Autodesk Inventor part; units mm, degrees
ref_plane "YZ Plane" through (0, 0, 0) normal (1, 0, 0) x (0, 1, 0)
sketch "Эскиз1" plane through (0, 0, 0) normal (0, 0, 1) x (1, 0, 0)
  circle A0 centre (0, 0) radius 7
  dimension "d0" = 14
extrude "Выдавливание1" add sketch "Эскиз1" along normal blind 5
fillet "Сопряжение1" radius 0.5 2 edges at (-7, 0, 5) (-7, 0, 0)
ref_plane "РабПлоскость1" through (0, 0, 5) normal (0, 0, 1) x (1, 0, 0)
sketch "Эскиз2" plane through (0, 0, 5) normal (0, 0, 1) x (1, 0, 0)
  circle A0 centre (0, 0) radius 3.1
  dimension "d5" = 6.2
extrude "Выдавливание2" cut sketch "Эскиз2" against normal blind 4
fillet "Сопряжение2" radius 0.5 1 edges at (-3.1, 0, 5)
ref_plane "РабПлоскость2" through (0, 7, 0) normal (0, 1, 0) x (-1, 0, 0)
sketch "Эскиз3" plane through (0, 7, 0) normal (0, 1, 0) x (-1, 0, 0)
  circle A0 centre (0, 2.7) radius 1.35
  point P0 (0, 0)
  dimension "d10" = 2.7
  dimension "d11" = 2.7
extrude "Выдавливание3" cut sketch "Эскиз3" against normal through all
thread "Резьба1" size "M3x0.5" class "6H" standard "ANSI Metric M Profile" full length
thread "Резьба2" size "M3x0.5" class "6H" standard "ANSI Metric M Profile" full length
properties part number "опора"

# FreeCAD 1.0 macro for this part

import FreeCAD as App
import Part
import Sketcher

V = App.Vector
Q = App.Units.Quantity


def edges_at(feature, points):
    """Names of the edges that pass closest to the given points."""
    edges = feature.Shape.Edges
    near = lambda p: min(range(len(edges)), key=lambda i: edges[i].distToShape(Part.Vertex(*p))[0])
    return sorted({f"Edge{near(p) + 1}" for p in points})

doc = App.newDocument("Part")
body = doc.addObject("PartDesign::Body", "Body")

# Sketch on XY plane
sketch1 = body.newObject("Sketcher::SketchObject", "Sketch")
sketch1.AttachmentSupport = (doc.getObject("XY_Plane"), [""])
sketch1.MapMode = "FlatFace"
sketch1.addGeometry(Part.Circle(V(0, 0, 0), V(0, 0, 1), 7), False)
sketch1.addConstraint(Sketcher.Constraint("Coincident", 0, 3, -1, 1))
sketch1.addConstraint(Sketcher.Constraint("Diameter", 0, Q("14 mm")))
pad1 = body.newObject("PartDesign::Pad", "Pad")
pad1.Profile = sketch1
pad1.Length = 5
doc.recompute()

fillet = body.newObject("PartDesign::Fillet", "Fillet")
fillet.Base = (pad1, edges_at(pad1, [(-7, 0, 5), (-7, 0, 0)]))
fillet.Radius = 0.5

# Sketch on XY plane
sketch2 = body.newObject("Sketcher::SketchObject", "Sketch001")
sketch2.AttachmentSupport = (doc.getObject("XY_Plane"), [""])
sketch2.MapMode = "FlatFace"
sketch2.AttachmentOffset = App.Placement(V(0, 0, 5), App.Rotation())
sketch2.addGeometry(Part.Circle(V(0, 0, 0), V(0, 0, 1), 3.1), False)
sketch2.addConstraint(Sketcher.Constraint("Coincident", 0, 3, -1, 1))
sketch2.addConstraint(Sketcher.Constraint("Diameter", 0, Q("6.2 mm")))
pocket1 = body.newObject("PartDesign::Pocket", "Pocket")
pocket1.Profile = sketch2
pocket1.Length = 4
doc.recompute()

fillet2 = body.newObject("PartDesign::Fillet", "Fillet001")
fillet2.Base = (pocket1, edges_at(pocket1, [(-3.1, 0, 5)]))
fillet2.Radius = 0.5

# Sketch on XZ plane
sketch3 = body.newObject("Sketcher::SketchObject", "Sketch002")
sketch3.AttachmentSupport = (doc.getObject("XZ_Plane"), [""])
sketch3.MapMode = "FlatFace"
sketch3.AttachmentOffset = App.Placement(V(0, 0, -7), App.Rotation())
sketch3.addGeometry(Part.Circle(V(0, 2.7, 0), V(0, 0, 1), 1.4), False)
sketch3.addConstraint(Sketcher.Constraint("PointOnObject", 0, 3, -2))
sketch3.addConstraint(Sketcher.Constraint("Diameter", 0, Q("2.7 mm")))
sketch3.addConstraint(Sketcher.Constraint("DistanceY", -1, 1, 0, 3, Q("2.7 mm")))
pocket2 = body.newObject("PartDesign::Pocket", "Pocket001")
pocket2.Profile = sketch3
pocket2.Type = "ThroughAll"
pocket2.Reversed = True

doc.recompute()
